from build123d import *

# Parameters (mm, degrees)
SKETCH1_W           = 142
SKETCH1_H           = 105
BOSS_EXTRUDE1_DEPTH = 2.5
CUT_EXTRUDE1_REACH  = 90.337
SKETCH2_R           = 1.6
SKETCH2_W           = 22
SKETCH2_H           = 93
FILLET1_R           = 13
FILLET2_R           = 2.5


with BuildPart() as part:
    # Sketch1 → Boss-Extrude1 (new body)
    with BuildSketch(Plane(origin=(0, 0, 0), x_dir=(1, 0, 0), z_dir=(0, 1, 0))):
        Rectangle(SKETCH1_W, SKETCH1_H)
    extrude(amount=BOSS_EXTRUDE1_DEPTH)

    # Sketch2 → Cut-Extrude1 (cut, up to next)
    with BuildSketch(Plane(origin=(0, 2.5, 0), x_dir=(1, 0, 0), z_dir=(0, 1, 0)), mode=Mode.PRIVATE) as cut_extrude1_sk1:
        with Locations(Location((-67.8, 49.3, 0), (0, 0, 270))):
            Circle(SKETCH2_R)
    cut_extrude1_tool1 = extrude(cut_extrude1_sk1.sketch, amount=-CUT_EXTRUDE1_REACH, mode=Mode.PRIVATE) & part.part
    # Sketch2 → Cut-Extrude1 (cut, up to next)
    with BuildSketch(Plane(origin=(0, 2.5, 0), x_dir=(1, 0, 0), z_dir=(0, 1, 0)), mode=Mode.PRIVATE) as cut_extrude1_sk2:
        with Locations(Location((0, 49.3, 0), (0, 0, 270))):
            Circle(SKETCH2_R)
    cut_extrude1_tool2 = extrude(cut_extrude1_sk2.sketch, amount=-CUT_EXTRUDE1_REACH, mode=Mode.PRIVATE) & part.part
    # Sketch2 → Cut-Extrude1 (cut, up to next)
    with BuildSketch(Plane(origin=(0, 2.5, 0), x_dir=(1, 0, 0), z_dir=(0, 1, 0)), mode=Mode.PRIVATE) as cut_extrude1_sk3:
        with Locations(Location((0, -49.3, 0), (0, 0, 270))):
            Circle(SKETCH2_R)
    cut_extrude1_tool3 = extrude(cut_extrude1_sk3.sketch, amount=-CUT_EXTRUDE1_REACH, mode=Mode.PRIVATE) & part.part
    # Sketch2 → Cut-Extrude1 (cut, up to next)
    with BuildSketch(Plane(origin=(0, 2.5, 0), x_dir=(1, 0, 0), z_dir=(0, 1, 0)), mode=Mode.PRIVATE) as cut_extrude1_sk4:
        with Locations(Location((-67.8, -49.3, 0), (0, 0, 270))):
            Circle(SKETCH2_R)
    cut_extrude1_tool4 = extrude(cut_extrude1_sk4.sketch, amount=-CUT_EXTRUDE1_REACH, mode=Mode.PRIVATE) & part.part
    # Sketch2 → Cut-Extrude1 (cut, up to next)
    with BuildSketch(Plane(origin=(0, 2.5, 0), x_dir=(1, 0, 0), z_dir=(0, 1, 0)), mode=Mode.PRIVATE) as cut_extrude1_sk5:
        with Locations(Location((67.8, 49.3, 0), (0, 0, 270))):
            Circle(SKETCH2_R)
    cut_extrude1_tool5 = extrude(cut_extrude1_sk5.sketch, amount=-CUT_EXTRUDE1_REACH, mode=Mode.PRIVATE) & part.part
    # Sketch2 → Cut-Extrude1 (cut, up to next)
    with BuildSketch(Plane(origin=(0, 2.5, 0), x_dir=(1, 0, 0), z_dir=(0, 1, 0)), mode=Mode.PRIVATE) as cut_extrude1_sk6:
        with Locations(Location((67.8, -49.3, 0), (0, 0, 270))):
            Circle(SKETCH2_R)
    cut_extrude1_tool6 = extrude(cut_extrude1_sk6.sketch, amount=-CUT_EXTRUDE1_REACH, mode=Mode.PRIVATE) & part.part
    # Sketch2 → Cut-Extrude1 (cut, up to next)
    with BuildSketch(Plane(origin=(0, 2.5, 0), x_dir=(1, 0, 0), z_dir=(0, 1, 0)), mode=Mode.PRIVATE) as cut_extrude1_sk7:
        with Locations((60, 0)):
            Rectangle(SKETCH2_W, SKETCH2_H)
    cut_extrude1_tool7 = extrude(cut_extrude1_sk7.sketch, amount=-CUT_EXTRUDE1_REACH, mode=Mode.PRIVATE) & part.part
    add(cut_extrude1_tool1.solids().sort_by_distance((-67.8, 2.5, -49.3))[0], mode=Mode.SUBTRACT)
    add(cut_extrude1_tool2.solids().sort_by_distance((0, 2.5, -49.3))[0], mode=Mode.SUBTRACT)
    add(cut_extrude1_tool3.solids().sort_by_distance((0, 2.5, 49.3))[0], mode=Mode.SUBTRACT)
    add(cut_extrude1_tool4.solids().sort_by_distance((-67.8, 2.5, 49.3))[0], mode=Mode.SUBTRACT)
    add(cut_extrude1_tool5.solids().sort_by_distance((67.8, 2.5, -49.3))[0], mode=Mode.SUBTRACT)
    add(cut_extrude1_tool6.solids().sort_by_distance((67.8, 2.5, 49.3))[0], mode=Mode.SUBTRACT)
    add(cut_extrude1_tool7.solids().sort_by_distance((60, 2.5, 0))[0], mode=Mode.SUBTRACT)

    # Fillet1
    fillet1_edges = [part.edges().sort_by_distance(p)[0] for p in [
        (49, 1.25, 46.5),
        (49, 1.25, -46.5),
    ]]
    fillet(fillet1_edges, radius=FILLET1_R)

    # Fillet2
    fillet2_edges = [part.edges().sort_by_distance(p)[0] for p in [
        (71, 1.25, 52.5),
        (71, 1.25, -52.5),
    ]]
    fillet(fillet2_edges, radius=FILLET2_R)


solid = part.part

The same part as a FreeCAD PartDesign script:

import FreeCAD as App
import Part
import Sketcher

V = App.Vector
Q = App.Units.Quantity


def edges_at(feature, points):
    """Names of the edges that pass closest to the given points."""
    edges = feature.Shape.Edges
    near = lambda p: min(range(len(edges)), key=lambda i: edges[i].distToShape(Part.Vertex(*p))[0])
    return sorted({f"Edge{near(p) + 1}" for p in points})


def add_polygon(sketch, points):
    """Adds a closed chain of lines whose ends are joined by coincident constraints."""
    first, n = sketch.GeometryCount, len(points)
    for a, b in zip(points, points[1:] + points[:1]):
        sketch.addGeometry(Part.LineSegment(App.Vector(*a, 0), App.Vector(*b, 0)), False)
    for i in range(n):
        sketch.addConstraint(Sketcher.Constraint("Coincident", first + i, 2, first + (i + 1) % n, 1))

doc = App.newDocument("Part")
params = doc.addObject("Spreadsheet::Sheet", "Params")
for row, (alias, value) in enumerate([
    ("sketch1_width", "142 mm"),
    ("sketch1_height", "105 mm"),
    ("pad1_length", "2.5 mm"),
    ("sketch2_diameter", "3.2 mm"),
    ("sketch3_diameter", "3.2 mm"),
    ("sketch4_diameter", "3.2 mm"),
    ("sketch5_diameter", "3.2 mm"),
    ("sketch6_diameter", "3.2 mm"),
    ("sketch7_diameter", "3.2 mm"),
    ("sketch8_width", "22 mm"),
    ("sketch8_height", "93 mm"),
    ("fillet_radius", "13 mm"),
    ("fillet2_radius", "2.5 mm"),
], start=1):
    params.set(f"A{row}", alias)
    params.set(f"B{row}", "=" + value)
    params.setAlias(f"B{row}", alias)

body = doc.addObject("PartDesign::Body", "Body")

# Sketch on XZ plane
sketch1 = body.newObject("Sketcher::SketchObject", "Sketch")
sketch1.AttachmentSupport = (doc.getObject("XZ_Plane"), [""])
sketch1.MapMode = "FlatFace"
add_polygon(sketch1, [(-71, -52.5), (-71, 52.5), (71, 52.5), (71, -52.5)])  # lines 0-3
sketch1.addConstraint([
    Sketcher.Constraint("Vertical", 0),
    Sketcher.Constraint("Horizontal", 1),
    Sketcher.Constraint("Vertical", 2),
    Sketcher.Constraint("Horizontal", 3),
    Sketcher.Constraint("Symmetric", 0, 2, 2, 2, -1, 1),
    Sketcher.Constraint("DistanceX", 1, 1, 1, 2, Q("142 mm")),
    Sketcher.Constraint("DistanceY", 0, 1, 0, 2, Q("105 mm")),
])
sketch1.setExpression("Constraints[9]", "Params.sketch1_width")
sketch1.setExpression("Constraints[10]", "Params.sketch1_height")
pad1 = body.newObject("PartDesign::Pad", "Pad")
pad1.Profile = sketch1
pad1.setExpression("Length", "Params.pad1_length")
pad1.Reversed = True

# Sketch on XZ plane
sketch2 = body.newObject("Sketcher::SketchObject", "Sketch001")
sketch2.AttachmentSupport = (doc.getObject("XZ_Plane"), [""])
sketch2.MapMode = "FlatFace"
sketch2.AttachmentOffset = App.Placement(V(0, 0, -2.5), App.Rotation())
sketch2.addGeometry(Part.Circle(V(-67.8, -49.3, 0), V(0, 0, 1), 1.6), False)
sketch2.addConstraint([
    Sketcher.Constraint("Diameter", 0, Q("3.2 mm")),
    Sketcher.Constraint("DistanceX", 0, 3, -1, 1, Q("67.8 mm")),
    Sketcher.Constraint("DistanceY", 0, 3, -1, 1, Q("49.3 mm")),
])
sketch2.setExpression("Constraints[0]", "Params.sketch2_diameter")
pocket1 = body.newObject("PartDesign::Pocket", "Pocket")
pocket1.Profile = sketch2
pocket1.Type = "UpToFirst"
pocket1.Reversed = True

# Sketch on XZ plane
sketch3 = body.newObject("Sketcher::SketchObject", "Sketch002")
sketch3.AttachmentSupport = (doc.getObject("XZ_Plane"), [""])
sketch3.MapMode = "FlatFace"
sketch3.AttachmentOffset = App.Placement(V(0, 0, -2.5), App.Rotation())
sketch3.addGeometry(Part.Circle(V(0, -49.3, 0), V(0, 0, 1), 1.6), False)
sketch3.addConstraint([
    Sketcher.Constraint("PointOnObject", 0, 3, -2),
    Sketcher.Constraint("Diameter", 0, Q("3.2 mm")),
    Sketcher.Constraint("DistanceY", 0, 3, -1, 1, Q("49.3 mm")),
])
sketch3.setExpression("Constraints[1]", "Params.sketch3_diameter")
pocket2 = body.newObject("PartDesign::Pocket", "Pocket001")
pocket2.Profile = sketch3
pocket2.Type = "UpToFirst"
pocket2.Reversed = True

# Sketch on XZ plane
sketch4 = body.newObject("Sketcher::SketchObject", "Sketch003")
sketch4.AttachmentSupport = (doc.getObject("XZ_Plane"), [""])
sketch4.MapMode = "FlatFace"
sketch4.AttachmentOffset = App.Placement(V(0, 0, -2.5), App.Rotation())
sketch4.addGeometry(Part.Circle(V(0, 49.3, 0), V(0, 0, 1), 1.6), False)
sketch4.addConstraint([
    Sketcher.Constraint("PointOnObject", 0, 3, -2),
    Sketcher.Constraint("Diameter", 0, Q("3.2 mm")),
    Sketcher.Constraint("DistanceY", -1, 1, 0, 3, Q("49.3 mm")),
])
sketch4.setExpression("Constraints[1]", "Params.sketch4_diameter")
pocket3 = body.newObject("PartDesign::Pocket", "Pocket002")
pocket3.Profile = sketch4
pocket3.Type = "UpToFirst"
pocket3.Reversed = True

# Sketch on XZ plane
sketch5 = body.newObject("Sketcher::SketchObject", "Sketch004")
sketch5.AttachmentSupport = (doc.getObject("XZ_Plane"), [""])
sketch5.MapMode = "FlatFace"
sketch5.AttachmentOffset = App.Placement(V(0, 0, -2.5), App.Rotation())
sketch5.addGeometry(Part.Circle(V(-67.8, 49.3, 0), V(0, 0, 1), 1.6), False)
sketch5.addConstraint([
    Sketcher.Constraint("Diameter", 0, Q("3.2 mm")),
    Sketcher.Constraint("DistanceX", 0, 3, -1, 1, Q("67.8 mm")),
    Sketcher.Constraint("DistanceY", -1, 1, 0, 3, Q("49.3 mm")),
])
sketch5.setExpression("Constraints[0]", "Params.sketch5_diameter")
pocket4 = body.newObject("PartDesign::Pocket", "Pocket003")
pocket4.Profile = sketch5
pocket4.Type = "UpToFirst"
pocket4.Reversed = True

# Sketch on XZ plane
sketch6 = body.newObject("Sketcher::SketchObject", "Sketch005")
sketch6.AttachmentSupport = (doc.getObject("XZ_Plane"), [""])
sketch6.MapMode = "FlatFace"
sketch6.AttachmentOffset = App.Placement(V(0, 0, -2.5), App.Rotation())
sketch6.addGeometry(Part.Circle(V(67.8, -49.3, 0), V(0, 0, 1), 1.6), False)
sketch6.addConstraint([
    Sketcher.Constraint("Diameter", 0, Q("3.2 mm")),
    Sketcher.Constraint("DistanceX", -1, 1, 0, 3, Q("67.8 mm")),
    Sketcher.Constraint("DistanceY", 0, 3, -1, 1, Q("49.3 mm")),
])
sketch6.setExpression("Constraints[0]", "Params.sketch6_diameter")
pocket5 = body.newObject("PartDesign::Pocket", "Pocket004")
pocket5.Profile = sketch6
pocket5.Type = "UpToFirst"
pocket5.Reversed = True

# Sketch on XZ plane
sketch7 = body.newObject("Sketcher::SketchObject", "Sketch006")
sketch7.AttachmentSupport = (doc.getObject("XZ_Plane"), [""])
sketch7.MapMode = "FlatFace"
sketch7.AttachmentOffset = App.Placement(V(0, 0, -2.5), App.Rotation())
sketch7.addGeometry(Part.Circle(V(67.8, 49.3, 0), V(0, 0, 1), 1.6), False)
sketch7.addConstraint([
    Sketcher.Constraint("Diameter", 0, Q("3.2 mm")),
    Sketcher.Constraint("DistanceX", -1, 1, 0, 3, Q("67.8 mm")),
    Sketcher.Constraint("DistanceY", -1, 1, 0, 3, Q("49.3 mm")),
])
sketch7.setExpression("Constraints[0]", "Params.sketch7_diameter")
pocket6 = body.newObject("PartDesign::Pocket", "Pocket005")
pocket6.Profile = sketch7
pocket6.Type = "UpToFirst"
pocket6.Reversed = True

# Sketch on XZ plane
sketch8 = body.newObject("Sketcher::SketchObject", "Sketch007")
sketch8.AttachmentSupport = (doc.getObject("XZ_Plane"), [""])
sketch8.MapMode = "FlatFace"
sketch8.AttachmentOffset = App.Placement(V(0, 0, -2.5), App.Rotation())
add_polygon(sketch8, [(49, -46.5), (49, 46.5), (71, 46.5), (71, -46.5)])  # lines 0-3
sketch8.addConstraint([
    Sketcher.Constraint("Vertical", 0),
    Sketcher.Constraint("Horizontal", 1),
    Sketcher.Constraint("Vertical", 2),
    Sketcher.Constraint("Horizontal", 3),
    Sketcher.Constraint("DistanceX", 1, 1, 1, 2, Q("22 mm")),
    Sketcher.Constraint("DistanceY", 0, 1, 0, 2, Q("93 mm")),
    Sketcher.Constraint("DistanceX", -1, 1, 0, 2, Q("49 mm")),
    Sketcher.Constraint("DistanceY", -1, 1, 0, 2, Q("46.5 mm")),
])
sketch8.setExpression("Constraints[8]", "Params.sketch8_width")
sketch8.setExpression("Constraints[9]", "Params.sketch8_height")
pocket7 = body.newObject("PartDesign::Pocket", "Pocket006")
pocket7.Profile = sketch8
pocket7.Type = "UpToFirst"
pocket7.Reversed = True
doc.recompute()

fillet = body.newObject("PartDesign::Fillet", "Fillet")
fillet.Base = (pocket7, edges_at(pocket7, [(49, 1.25, 46.5), (49, 1.25, -46.5)]))
fillet.setExpression("Radius", "Params.fillet_radius")
doc.recompute()

fillet2 = body.newObject("PartDesign::Fillet", "Fillet001")
fillet2.Base = (fillet, edges_at(fillet, [(71, 1.25, 52.5), (71, 1.25, -52.5)]))
fillet2.setExpression("Radius", "Params.fillet2_radius")

doc.recompute()
